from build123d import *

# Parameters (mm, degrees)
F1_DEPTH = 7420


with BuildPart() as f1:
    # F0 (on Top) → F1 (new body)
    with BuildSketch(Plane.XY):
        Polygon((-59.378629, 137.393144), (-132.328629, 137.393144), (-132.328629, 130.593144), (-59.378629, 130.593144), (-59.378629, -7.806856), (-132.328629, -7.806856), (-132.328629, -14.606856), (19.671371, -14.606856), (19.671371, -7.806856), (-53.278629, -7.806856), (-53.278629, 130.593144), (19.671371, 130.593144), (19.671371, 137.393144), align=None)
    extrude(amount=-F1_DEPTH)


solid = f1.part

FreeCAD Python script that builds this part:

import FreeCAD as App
import Part
import Sketcher
Q = App.Units.Quantity


def add_polygon(sketch, points):
    """Adds a closed chain of lines whose ends are joined by coincident constraints."""
    first, n = sketch.GeometryCount, len(points)
    for a, b in zip(points, points[1:] + points[:1]):
        sketch.addGeometry(Part.LineSegment(App.Vector(*a, 0), App.Vector(*b, 0)), False)
    for i in range(n):
        sketch.addConstraint(Sketcher.Constraint("Coincident", first + i, 2, first + (i + 1) % n, 1))

doc = App.newDocument("Part")
body = doc.addObject("PartDesign::Body", "Body")

# Sketch on XY plane
sketch1 = doc.addObject("Sketcher::SketchObject", "Sketch")
body.addObject(sketch1)
sketch1.AttachmentSupport = (doc.XY_Plane, [""])
sketch1.MapMode = "FlatFace"
add_polygon(sketch1, [(-132, 137), (-132, 131), (-59, 131), (-59, -8), (-132, -8), (-132, -15), (20, -15), (20, -8), (-53, -8), (-53, 131), (20, 131), (20, 137)])  # lines 0-11
sketch1.addConstraint([
    Sketcher.Constraint("Vertical", 0),
    Sketcher.Constraint("Horizontal", 1),
    Sketcher.Constraint("Vertical", 2),
    Sketcher.Constraint("Horizontal", 3),
    Sketcher.Constraint("Vertical", 4),
    Sketcher.Constraint("Horizontal", 5),
    Sketcher.Constraint("Vertical", 6),
    Sketcher.Constraint("Horizontal", 7),
    Sketcher.Constraint("Vertical", 8),
    Sketcher.Constraint("Horizontal", 9),
    Sketcher.Constraint("Vertical", 10),
    Sketcher.Constraint("Horizontal", 11),
    Sketcher.Constraint("Horizontal", 3, 2, 6, 2),
    Sketcher.Constraint("Horizontal", 1, 2, 8, 2),
    Sketcher.Constraint("Vertical", 0, 2, 3, 2),
    Sketcher.Constraint("Vertical", 6, 2, 9, 2),
    Sketcher.Constraint("Equal", 3, 7),
    Sketcher.Constraint("Equal", 0, 4),
    Sketcher.Constraint("DistanceX", 5, 1, 5, 2, Q("152 mm")),
    Sketcher.Constraint("DistanceY", 0, 2, 0, 1, Q("6.8 mm")),
    Sketcher.Constraint("DistanceY", 2, 2, 2, 1, Q("138.4 mm")),
    Sketcher.Constraint("DistanceX", 1, 1, 1, 2, Q("72.95 mm")),
    Sketcher.Constraint("DistanceX", 0, 2, -1, 1, Q("132.328629 mm")),
    Sketcher.Constraint("DistanceY", -1, 1, 0, 2, Q("130.593144 mm")),
])
pad1 = doc.addObject("PartDesign::Pad", "Pad")
body.addObject(pad1)
pad1.Profile = sketch1
pad1.Length = 7420
pad1.Reversed = True

doc.recompute()
